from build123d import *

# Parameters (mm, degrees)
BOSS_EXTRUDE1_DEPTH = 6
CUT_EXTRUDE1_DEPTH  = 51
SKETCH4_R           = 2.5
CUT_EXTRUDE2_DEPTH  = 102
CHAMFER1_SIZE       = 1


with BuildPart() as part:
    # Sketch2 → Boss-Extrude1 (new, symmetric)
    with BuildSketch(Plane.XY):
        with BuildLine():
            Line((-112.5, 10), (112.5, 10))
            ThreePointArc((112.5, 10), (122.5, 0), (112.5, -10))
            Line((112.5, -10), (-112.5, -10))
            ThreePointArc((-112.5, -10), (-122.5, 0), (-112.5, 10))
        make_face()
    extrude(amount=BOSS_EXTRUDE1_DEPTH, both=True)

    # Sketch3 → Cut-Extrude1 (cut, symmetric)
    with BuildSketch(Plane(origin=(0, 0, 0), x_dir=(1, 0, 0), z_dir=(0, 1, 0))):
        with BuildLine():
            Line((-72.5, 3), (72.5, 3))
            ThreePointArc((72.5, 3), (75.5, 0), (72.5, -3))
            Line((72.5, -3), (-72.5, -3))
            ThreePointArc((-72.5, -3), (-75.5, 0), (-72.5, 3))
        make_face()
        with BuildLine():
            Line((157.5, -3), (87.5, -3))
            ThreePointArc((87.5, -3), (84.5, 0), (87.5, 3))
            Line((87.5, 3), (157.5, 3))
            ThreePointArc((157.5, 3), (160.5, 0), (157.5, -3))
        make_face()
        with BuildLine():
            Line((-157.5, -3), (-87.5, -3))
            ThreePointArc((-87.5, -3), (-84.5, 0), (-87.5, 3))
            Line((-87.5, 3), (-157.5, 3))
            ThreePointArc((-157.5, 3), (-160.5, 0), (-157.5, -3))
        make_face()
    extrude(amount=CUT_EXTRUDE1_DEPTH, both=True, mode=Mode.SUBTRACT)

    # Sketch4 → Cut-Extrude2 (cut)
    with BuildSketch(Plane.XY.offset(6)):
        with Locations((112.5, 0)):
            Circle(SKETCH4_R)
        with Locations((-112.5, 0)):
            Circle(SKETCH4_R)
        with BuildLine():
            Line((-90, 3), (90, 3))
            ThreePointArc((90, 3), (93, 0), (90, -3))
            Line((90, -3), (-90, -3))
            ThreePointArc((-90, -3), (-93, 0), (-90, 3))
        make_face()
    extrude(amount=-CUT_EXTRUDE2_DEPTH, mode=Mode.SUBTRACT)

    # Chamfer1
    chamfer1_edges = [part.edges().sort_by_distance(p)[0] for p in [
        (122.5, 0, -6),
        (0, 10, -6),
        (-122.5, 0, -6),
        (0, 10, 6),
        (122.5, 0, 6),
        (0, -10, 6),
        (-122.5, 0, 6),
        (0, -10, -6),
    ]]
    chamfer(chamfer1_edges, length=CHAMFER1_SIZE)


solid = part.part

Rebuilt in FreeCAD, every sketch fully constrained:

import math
import FreeCAD as App
import Part
import Sketcher
from FreeCAD import Vector


def edges_at(feature, points):
    """Names of the edges that pass closest to the given points."""
    edges = feature.Shape.Edges
    near = lambda p: min(range(len(edges)), key=lambda i: edges[i].distToShape(Part.Vertex(*p))[0])
    return sorted({f"Edge{near(p) + 1}" for p in points})

doc = App.newDocument("Part")
body = doc.addObject("PartDesign::Body", "Body")

# Sketch on XY plane
sketch1 = body.newObject("Sketcher::SketchObject", "Sketch")
sketch1.AttachmentSupport = (doc.getObject("XY_Plane"), [""])
sketch1.MapMode = "FlatFace"
sketch1.addGeometry([
    Part.LineSegment(Vector(112, 10, 0), Vector(-112, 10, 0)),
    Part.ArcOfCircle(Part.Circle(Vector(-112, 0, 0), Vector(0, 0, 1), 10), math.radians(90), math.radians(270)),
    Part.LineSegment(Vector(-112, -10, 0), Vector(112, -10, 0)),
    Part.ArcOfCircle(Part.Circle(Vector(112, 0, 0), Vector(0, 0, 1), 10), math.radians(-90), math.radians(90)),
], False)
sketch1.addConstraint([
    Sketcher.Constraint("Tangent", 0, 2, 1, 1),
    Sketcher.Constraint("Tangent", 1, 2, 2, 1),
    Sketcher.Constraint("Tangent", 2, 2, 3, 1),
    Sketcher.Constraint("Tangent", 3, 2, 0, 1),
    Sketcher.Constraint("Horizontal", 0),
    Sketcher.Constraint("Horizontal", 2),
    Sketcher.Constraint("Symmetric", 1, 3, 3, 3, -1, 1),
    Sketcher.Constraint("Radius", 1, 10.0),
    Sketcher.Constraint("DistanceX", 0, 2, 0, 1, 225.0),
])
pad1 = body.newObject("PartDesign::Pad", "Pad")
pad1.Profile = sketch1
pad1.Length = 12
pad1.Midplane = True

# Sketch on XZ plane
sketch2 = body.newObject("Sketcher::SketchObject", "Sketch001")
sketch2.AttachmentSupport = (doc.getObject("XZ_Plane"), [""])
sketch2.MapMode = "FlatFace"
sketch2.addGeometry([
    Part.LineSegment(Vector(72.5, -3, 0), Vector(-72.5, -3, 0)),  # 0
    Part.ArcOfCircle(Part.Circle(Vector(-72.5, 0, 0), Vector(0, 0, 1), 3), math.radians(90), math.radians(270)),  # 1
    Part.LineSegment(Vector(-72.5, 3, 0), Vector(72.5, 3, 0)),  # 2
    Part.ArcOfCircle(Part.Circle(Vector(72.5, 0, 0), Vector(0, 0, 1), 3), math.radians(-90), math.radians(90)),  # 3
    Part.LineSegment(Vector(87.5, 3, 0), Vector(157.5, 3, 0)),  # 4
    Part.ArcOfCircle(Part.Circle(Vector(157.5, 0, 0), Vector(0, 0, 1), 3), math.radians(-90), math.radians(90)),  # 5
    Part.LineSegment(Vector(157.5, -3, 0), Vector(87.5, -3, 0)),  # 6
    Part.ArcOfCircle(Part.Circle(Vector(87.5, 0, 0), Vector(0, 0, 1), 3), math.radians(90), math.radians(270)),  # 7
    Part.LineSegment(Vector(-157.5, 3, 0), Vector(-87.5, 3, 0)),  # 8
    Part.ArcOfCircle(Part.Circle(Vector(-87.5, 0, 0), Vector(0, 0, 1), 3), math.radians(-90), math.radians(90)),  # 9
    Part.LineSegment(Vector(-87.5, -3, 0), Vector(-157.5, -3, 0)),  # 10
    Part.ArcOfCircle(Part.Circle(Vector(-157.5, 0, 0), Vector(0, 0, 1), 3), math.radians(90), math.radians(270)),  # 11
], False)
sketch2.addConstraint([
    Sketcher.Constraint("Tangent", 0, 2, 1, 2),
    Sketcher.Constraint("Tangent", 1, 1, 2, 1),
    Sketcher.Constraint("Tangent", 2, 2, 3, 2),
    Sketcher.Constraint("Tangent", 3, 1, 0, 1),
    Sketcher.Constraint("Tangent", 4, 2, 5, 2),
    Sketcher.Constraint("Tangent", 5, 1, 6, 1),
    Sketcher.Constraint("Tangent", 6, 2, 7, 2),
    Sketcher.Constraint("Tangent", 7, 1, 4, 1),
    Sketcher.Constraint("Tangent", 8, 2, 9, 2),
    Sketcher.Constraint("Tangent", 9, 1, 10, 1),
    Sketcher.Constraint("Tangent", 10, 2, 11, 2),
    Sketcher.Constraint("Tangent", 11, 1, 8, 1),
    Sketcher.Constraint("Horizontal", 0),
    Sketcher.Constraint("Horizontal", 2),
    Sketcher.Constraint("Horizontal", 4),
    Sketcher.Constraint("Horizontal", 6),
    Sketcher.Constraint("Horizontal", 8),
    Sketcher.Constraint("Horizontal", 10),
    Sketcher.Constraint("Equal", 3, 5),
    Sketcher.Constraint("Equal", 7, 9),
    Sketcher.Constraint("Symmetric", 1, 3, 3, 3, -1, 1),
    Sketcher.Constraint("Symmetric", 7, 3, 9, 3, -1, 1),
    Sketcher.Constraint("Symmetric", 5, 3, 11, 3, -2),
    Sketcher.Constraint("Radius", 1, 3.0),
    Sketcher.Constraint("DistanceX", 0, 2, 0, 1, 145.0),
    Sketcher.Constraint("DistanceX", 4, 1, 4, 2, 70.0),
    Sketcher.Constraint("DistanceX", 3, 3, 5, 3, 85.0),
])
pocket1 = body.newObject("PartDesign::Pocket", "Pocket")
pocket1.Profile = sketch2
pocket1.Length = 102
pocket1.Midplane = True

# Sketch on XY plane
sketch3 = body.newObject("Sketcher::SketchObject", "Sketch002")
sketch3.AttachmentSupport = (doc.getObject("XY_Plane"), [""])
sketch3.MapMode = "FlatFace"
sketch3.AttachmentOffset = App.Placement(Vector(0, 0, 6), App.Rotation())
sketch3.addGeometry([
    Part.Circle(Vector(112.5, 0, 0), Vector(0, 0, 1), 2.5),  # 0
    Part.Circle(Vector(-112.5, 0, 0), Vector(0, 0, 1), 2.5),  # 1
    Part.LineSegment(Vector(90, 3, 0), Vector(-90, 3, 0)),  # 2
    Part.ArcOfCircle(Part.Circle(Vector(-90, 0, 0), Vector(0, 0, 1), 3), math.radians(90), math.radians(270)),  # 3
    Part.LineSegment(Vector(-90, -3, 0), Vector(90, -3, 0)),  # 4
    Part.ArcOfCircle(Part.Circle(Vector(90, 0, 0), Vector(0, 0, 1), 3), math.radians(-90), math.radians(90)),  # 5
], False)
sketch3.addConstraint([
    Sketcher.Constraint("Tangent", 2, 2, 3, 1),
    Sketcher.Constraint("Tangent", 3, 2, 4, 1),
    Sketcher.Constraint("Tangent", 4, 2, 5, 1),
    Sketcher.Constraint("Tangent", 5, 2, 2, 1),
    Sketcher.Constraint("Horizontal", 2),
    Sketcher.Constraint("Horizontal", 4),
    Sketcher.Constraint("Equal", 0, 1),
    Sketcher.Constraint("Symmetric", 0, 3, 1, 3, -1, 1),
    Sketcher.Constraint("Symmetric", 3, 3, 5, 3, -1, 1),
    Sketcher.Constraint("PointOnObject", 0, 3, -1),
    Sketcher.Constraint("Diameter", 0, 5.0),
    Sketcher.Constraint("Radius", 3, 3.0),
    Sketcher.Constraint("DistanceX", 2, 2, 2, 1, 180.0),
    Sketcher.Constraint("DistanceX", 1, 3, 0, 3, 225.0),
])
pocket2 = body.newObject("PartDesign::Pocket", "Pocket001")
pocket2.Profile = sketch3
pocket2.Length = 102
doc.recompute()

chamfer = body.newObject("PartDesign::Chamfer", "Chamfer")
chamfer.Base = (pocket2, edges_at(pocket2, [
    (122.5, 0, -6),
    (0, 10, -6),
    (-122.5, 0, -6),
    (0, 10, 6),
    (122.5, 0, 6),
    (0, -10, 6),
    (-122.5, 0, 6),
    (0, -10, -6),
]))
chamfer.Size = 1

doc.recompute()
